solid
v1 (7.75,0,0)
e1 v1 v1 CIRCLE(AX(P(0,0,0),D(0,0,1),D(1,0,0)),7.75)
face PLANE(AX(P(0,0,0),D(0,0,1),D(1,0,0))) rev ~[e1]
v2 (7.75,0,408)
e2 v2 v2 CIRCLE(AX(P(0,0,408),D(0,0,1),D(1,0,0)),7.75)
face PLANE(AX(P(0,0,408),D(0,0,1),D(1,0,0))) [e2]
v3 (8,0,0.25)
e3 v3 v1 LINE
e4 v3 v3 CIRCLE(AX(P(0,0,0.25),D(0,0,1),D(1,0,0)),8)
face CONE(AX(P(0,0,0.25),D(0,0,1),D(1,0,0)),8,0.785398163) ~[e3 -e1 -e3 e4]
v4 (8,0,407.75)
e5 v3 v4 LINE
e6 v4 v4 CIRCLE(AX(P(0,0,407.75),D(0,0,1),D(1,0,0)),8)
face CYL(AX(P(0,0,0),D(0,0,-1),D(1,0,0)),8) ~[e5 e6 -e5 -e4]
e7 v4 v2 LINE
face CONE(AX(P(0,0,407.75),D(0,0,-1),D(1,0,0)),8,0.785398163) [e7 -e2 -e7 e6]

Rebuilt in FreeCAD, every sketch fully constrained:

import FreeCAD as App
import Part
import Sketcher
from FreeCAD import Vector


def edges_at(feature, points):
    """Names of the edges that pass closest to the given points."""
    edges = feature.Shape.Edges
    near = lambda p: min(range(len(edges)), key=lambda i: edges[i].distToShape(Part.Vertex(*p))[0])
    return sorted({f"Edge{near(p) + 1}" for p in points})

doc = App.newDocument("Part")
body = doc.addObject("PartDesign::Body", "Body")

sketch1 = body.newObject("Sketcher::SketchObject", "Sketch")
sketch1.AttachmentSupport = (doc.getObject("XY_Plane"), [""])
sketch1.MapMode = "FlatFace"
sketch1.addGeometry(Part.Circle(Vector(0, 0, 0), Vector(0, 0, 1), 8), False)
sketch1.addConstraint([
    Sketcher.Constraint("Coincident", 0, 3, -1, 1),
    Sketcher.Constraint("Diameter", 0, 16.0),
])
pad1 = body.newObject("PartDesign::Pad", "Pad")
pad1.Profile = sketch1
pad1.Length = 408
doc.recompute()

chamfer = body.newObject("PartDesign::Chamfer", "Chamfer")
chamfer.Base = (pad1, edges_at(pad1, [(-8, 0, 408), (-8, 0, 0)]))
chamfer.Size = 0.25

doc.recompute()
